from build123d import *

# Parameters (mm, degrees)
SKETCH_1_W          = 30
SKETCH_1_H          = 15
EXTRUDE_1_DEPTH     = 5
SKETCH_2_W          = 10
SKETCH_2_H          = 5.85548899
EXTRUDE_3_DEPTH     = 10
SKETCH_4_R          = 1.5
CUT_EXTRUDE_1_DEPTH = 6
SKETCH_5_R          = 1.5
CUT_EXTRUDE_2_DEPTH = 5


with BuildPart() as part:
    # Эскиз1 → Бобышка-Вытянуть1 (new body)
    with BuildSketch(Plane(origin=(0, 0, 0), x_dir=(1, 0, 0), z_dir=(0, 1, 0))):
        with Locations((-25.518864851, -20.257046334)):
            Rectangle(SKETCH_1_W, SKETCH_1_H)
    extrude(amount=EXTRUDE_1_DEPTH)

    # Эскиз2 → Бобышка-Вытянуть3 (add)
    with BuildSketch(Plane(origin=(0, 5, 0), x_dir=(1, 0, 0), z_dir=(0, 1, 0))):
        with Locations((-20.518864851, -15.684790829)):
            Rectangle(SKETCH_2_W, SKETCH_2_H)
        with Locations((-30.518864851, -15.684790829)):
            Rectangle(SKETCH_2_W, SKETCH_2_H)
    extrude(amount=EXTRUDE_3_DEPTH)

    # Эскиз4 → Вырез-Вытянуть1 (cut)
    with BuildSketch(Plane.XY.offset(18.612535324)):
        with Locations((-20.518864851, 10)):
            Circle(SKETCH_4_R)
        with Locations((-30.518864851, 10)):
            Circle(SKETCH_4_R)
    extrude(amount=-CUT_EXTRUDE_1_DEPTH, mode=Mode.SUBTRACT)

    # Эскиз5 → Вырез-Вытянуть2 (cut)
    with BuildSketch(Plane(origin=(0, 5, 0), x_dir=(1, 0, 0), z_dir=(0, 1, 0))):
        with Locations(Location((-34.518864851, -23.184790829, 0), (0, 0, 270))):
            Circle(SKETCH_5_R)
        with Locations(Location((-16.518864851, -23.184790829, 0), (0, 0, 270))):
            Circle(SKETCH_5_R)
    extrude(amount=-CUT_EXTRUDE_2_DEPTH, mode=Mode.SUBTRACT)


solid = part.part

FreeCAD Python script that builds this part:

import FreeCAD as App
import Part
import Sketcher

V = App.Vector
Q = App.Units.Quantity

doc = App.newDocument("Part")
body = doc.addObject("PartDesign::Body", "Body")

# Sketch on XZ plane
sketch1 = body.newObject("Sketcher::SketchObject", "Sketch")
sketch1.AttachmentSupport = (doc.getObject("XZ_Plane"), [""])
sketch1.MapMode = "FlatFace"
sketch1.addGeometry([
    Part.LineSegment(V(-40.518865, 12.757046, 0), V(-40.518865, 27.757046, 0)),
    Part.LineSegment(V(-40.518865, 27.757046, 0), V(-10.518865, 27.757046, 0)),
    Part.LineSegment(V(-10.518865, 27.757046, 0), V(-10.518865, 12.757046, 0)),
    Part.LineSegment(V(-10.518865, 12.757046, 0), V(-40.518865, 12.757046, 0)),
], False)
sketch1.addConstraint([
    Sketcher.Constraint("Coincident", 0, 2, 1, 1),
    Sketcher.Constraint("Coincident", 1, 2, 2, 1),
    Sketcher.Constraint("Coincident", 2, 2, 3, 1),
    Sketcher.Constraint("Coincident", 3, 2, 0, 1),
    Sketcher.Constraint("Vertical", 0),
    Sketcher.Constraint("Horizontal", 1),
    Sketcher.Constraint("Vertical", 2),
    Sketcher.Constraint("Horizontal", 3),
    Sketcher.Constraint("DistanceX", 1, 1, 1, 2, Q("30 mm")),
    Sketcher.Constraint("DistanceY", 0, 1, 0, 2, Q("15 mm")),
    Sketcher.Constraint("DistanceX", 0, 2, -1, 1, Q("40.518865 mm")),
    Sketcher.Constraint("DistanceY", -1, 1, 0, 2, Q("27.757046 mm")),
])
pad1 = body.newObject("PartDesign::Pad", "Pad")
pad1.Profile = sketch1
pad1.Length = 5
pad1.Reversed = True

# Sketch on XZ plane
sketch2 = body.newObject("Sketcher::SketchObject", "Sketch001")
sketch2.AttachmentSupport = (doc.getObject("XZ_Plane"), [""])
sketch2.MapMode = "FlatFace"
sketch2.AttachmentOffset = App.Placement(V(0, 0, -5), App.Rotation())
sketch2.addGeometry([
    Part.LineSegment(V(-15.518865, 18.612535, 0), V(-15.518865, 12.757046, 0)),
    Part.LineSegment(V(-15.518865, 12.757046, 0), V(-35.518865, 12.757046, 0)),
    Part.LineSegment(V(-35.518865, 12.757046, 0), V(-35.518865, 18.612535, 0)),
    Part.LineSegment(V(-35.518865, 18.612535, 0), V(-15.518865, 18.612535, 0)),
], False)
sketch2.addConstraint([
    Sketcher.Constraint("Coincident", 0, 2, 1, 1),
    Sketcher.Constraint("Coincident", 1, 2, 2, 1),
    Sketcher.Constraint("Coincident", 2, 2, 3, 1),
    Sketcher.Constraint("Coincident", 3, 2, 0, 1),
    Sketcher.Constraint("Vertical", 0),
    Sketcher.Constraint("Horizontal", 1),
    Sketcher.Constraint("Vertical", 2),
    Sketcher.Constraint("Horizontal", 3),
    Sketcher.Constraint("DistanceX", 1, 2, 1, 1, Q("20 mm")),
    Sketcher.Constraint("DistanceY", 0, 2, 0, 1, Q("5.855489 mm")),
    Sketcher.Constraint("DistanceX", 0, 2, -1, 1, Q("15.518865 mm")),
    Sketcher.Constraint("DistanceY", -1, 1, 0, 2, Q("12.757046 mm")),
])
pad2 = body.newObject("PartDesign::Pad", "Pad001")
pad2.Profile = sketch2
pad2.Length = 10
pad2.Reversed = True

# Sketch on XY plane
sketch3 = body.newObject("Sketcher::SketchObject", "Sketch002")
sketch3.AttachmentSupport = (doc.getObject("XY_Plane"), [""])
sketch3.MapMode = "FlatFace"
sketch3.AttachmentOffset = App.Placement(V(0, 0, 18.612535), App.Rotation())
sketch3.addGeometry([
    Part.Circle(V(-20.518865, 10, 0), V(0, 0, 1), 1.5),
    Part.Circle(V(-30.518865, 10, 0), V(0, 0, 1), 1.5),
], False)
sketch3.addConstraint([
    Sketcher.Constraint("Equal", 0, 1),
    Sketcher.Constraint("Horizontal", 0, 3, 1, 3),
    Sketcher.Constraint("Diameter", 0, Q("3 mm")),
    Sketcher.Constraint("DistanceY", -1, 1, 0, 3, Q("10 mm")),
    Sketcher.Constraint("DistanceX", 1, 3, 0, 3, Q("10 mm")),
    Sketcher.Constraint("DistanceX", 0, 3, -1, 1, Q("20.518865 mm")),
])
pocket1 = body.newObject("PartDesign::Pocket", "Pocket")
pocket1.Profile = sketch3
pocket1.Length = 6

# Sketch on XZ plane
sketch4 = body.newObject("Sketcher::SketchObject", "Sketch003")
sketch4.AttachmentSupport = (doc.getObject("XZ_Plane"), [""])
sketch4.MapMode = "FlatFace"
sketch4.AttachmentOffset = App.Placement(V(0, 0, -5), App.Rotation())
sketch4.addGeometry([
    Part.Circle(V(-34.518865, 23.184791, 0), V(0, 0, 1), 1.5),
    Part.Circle(V(-16.518865, 23.184791, 0), V(0, 0, 1), 1.5),
], False)
sketch4.addConstraint([
    Sketcher.Constraint("Equal", 0, 1),
    Sketcher.Constraint("Horizontal", 0, 3, 1, 3),
    Sketcher.Constraint("Diameter", 0, Q("3 mm")),
    Sketcher.Constraint("DistanceX", 0, 3, 1, 3, Q("18 mm")),
    Sketcher.Constraint("DistanceY", -1, 1, 0, 3, Q("23.184791 mm")),
    Sketcher.Constraint("DistanceX", 0, 3, -1, 1, Q("34.518865 mm")),
])
pocket2 = body.newObject("PartDesign::Pocket", "Pocket001")
pocket2.Profile = sketch4
pocket2.Length = 5
pocket2.Reversed = True

doc.recompute()
